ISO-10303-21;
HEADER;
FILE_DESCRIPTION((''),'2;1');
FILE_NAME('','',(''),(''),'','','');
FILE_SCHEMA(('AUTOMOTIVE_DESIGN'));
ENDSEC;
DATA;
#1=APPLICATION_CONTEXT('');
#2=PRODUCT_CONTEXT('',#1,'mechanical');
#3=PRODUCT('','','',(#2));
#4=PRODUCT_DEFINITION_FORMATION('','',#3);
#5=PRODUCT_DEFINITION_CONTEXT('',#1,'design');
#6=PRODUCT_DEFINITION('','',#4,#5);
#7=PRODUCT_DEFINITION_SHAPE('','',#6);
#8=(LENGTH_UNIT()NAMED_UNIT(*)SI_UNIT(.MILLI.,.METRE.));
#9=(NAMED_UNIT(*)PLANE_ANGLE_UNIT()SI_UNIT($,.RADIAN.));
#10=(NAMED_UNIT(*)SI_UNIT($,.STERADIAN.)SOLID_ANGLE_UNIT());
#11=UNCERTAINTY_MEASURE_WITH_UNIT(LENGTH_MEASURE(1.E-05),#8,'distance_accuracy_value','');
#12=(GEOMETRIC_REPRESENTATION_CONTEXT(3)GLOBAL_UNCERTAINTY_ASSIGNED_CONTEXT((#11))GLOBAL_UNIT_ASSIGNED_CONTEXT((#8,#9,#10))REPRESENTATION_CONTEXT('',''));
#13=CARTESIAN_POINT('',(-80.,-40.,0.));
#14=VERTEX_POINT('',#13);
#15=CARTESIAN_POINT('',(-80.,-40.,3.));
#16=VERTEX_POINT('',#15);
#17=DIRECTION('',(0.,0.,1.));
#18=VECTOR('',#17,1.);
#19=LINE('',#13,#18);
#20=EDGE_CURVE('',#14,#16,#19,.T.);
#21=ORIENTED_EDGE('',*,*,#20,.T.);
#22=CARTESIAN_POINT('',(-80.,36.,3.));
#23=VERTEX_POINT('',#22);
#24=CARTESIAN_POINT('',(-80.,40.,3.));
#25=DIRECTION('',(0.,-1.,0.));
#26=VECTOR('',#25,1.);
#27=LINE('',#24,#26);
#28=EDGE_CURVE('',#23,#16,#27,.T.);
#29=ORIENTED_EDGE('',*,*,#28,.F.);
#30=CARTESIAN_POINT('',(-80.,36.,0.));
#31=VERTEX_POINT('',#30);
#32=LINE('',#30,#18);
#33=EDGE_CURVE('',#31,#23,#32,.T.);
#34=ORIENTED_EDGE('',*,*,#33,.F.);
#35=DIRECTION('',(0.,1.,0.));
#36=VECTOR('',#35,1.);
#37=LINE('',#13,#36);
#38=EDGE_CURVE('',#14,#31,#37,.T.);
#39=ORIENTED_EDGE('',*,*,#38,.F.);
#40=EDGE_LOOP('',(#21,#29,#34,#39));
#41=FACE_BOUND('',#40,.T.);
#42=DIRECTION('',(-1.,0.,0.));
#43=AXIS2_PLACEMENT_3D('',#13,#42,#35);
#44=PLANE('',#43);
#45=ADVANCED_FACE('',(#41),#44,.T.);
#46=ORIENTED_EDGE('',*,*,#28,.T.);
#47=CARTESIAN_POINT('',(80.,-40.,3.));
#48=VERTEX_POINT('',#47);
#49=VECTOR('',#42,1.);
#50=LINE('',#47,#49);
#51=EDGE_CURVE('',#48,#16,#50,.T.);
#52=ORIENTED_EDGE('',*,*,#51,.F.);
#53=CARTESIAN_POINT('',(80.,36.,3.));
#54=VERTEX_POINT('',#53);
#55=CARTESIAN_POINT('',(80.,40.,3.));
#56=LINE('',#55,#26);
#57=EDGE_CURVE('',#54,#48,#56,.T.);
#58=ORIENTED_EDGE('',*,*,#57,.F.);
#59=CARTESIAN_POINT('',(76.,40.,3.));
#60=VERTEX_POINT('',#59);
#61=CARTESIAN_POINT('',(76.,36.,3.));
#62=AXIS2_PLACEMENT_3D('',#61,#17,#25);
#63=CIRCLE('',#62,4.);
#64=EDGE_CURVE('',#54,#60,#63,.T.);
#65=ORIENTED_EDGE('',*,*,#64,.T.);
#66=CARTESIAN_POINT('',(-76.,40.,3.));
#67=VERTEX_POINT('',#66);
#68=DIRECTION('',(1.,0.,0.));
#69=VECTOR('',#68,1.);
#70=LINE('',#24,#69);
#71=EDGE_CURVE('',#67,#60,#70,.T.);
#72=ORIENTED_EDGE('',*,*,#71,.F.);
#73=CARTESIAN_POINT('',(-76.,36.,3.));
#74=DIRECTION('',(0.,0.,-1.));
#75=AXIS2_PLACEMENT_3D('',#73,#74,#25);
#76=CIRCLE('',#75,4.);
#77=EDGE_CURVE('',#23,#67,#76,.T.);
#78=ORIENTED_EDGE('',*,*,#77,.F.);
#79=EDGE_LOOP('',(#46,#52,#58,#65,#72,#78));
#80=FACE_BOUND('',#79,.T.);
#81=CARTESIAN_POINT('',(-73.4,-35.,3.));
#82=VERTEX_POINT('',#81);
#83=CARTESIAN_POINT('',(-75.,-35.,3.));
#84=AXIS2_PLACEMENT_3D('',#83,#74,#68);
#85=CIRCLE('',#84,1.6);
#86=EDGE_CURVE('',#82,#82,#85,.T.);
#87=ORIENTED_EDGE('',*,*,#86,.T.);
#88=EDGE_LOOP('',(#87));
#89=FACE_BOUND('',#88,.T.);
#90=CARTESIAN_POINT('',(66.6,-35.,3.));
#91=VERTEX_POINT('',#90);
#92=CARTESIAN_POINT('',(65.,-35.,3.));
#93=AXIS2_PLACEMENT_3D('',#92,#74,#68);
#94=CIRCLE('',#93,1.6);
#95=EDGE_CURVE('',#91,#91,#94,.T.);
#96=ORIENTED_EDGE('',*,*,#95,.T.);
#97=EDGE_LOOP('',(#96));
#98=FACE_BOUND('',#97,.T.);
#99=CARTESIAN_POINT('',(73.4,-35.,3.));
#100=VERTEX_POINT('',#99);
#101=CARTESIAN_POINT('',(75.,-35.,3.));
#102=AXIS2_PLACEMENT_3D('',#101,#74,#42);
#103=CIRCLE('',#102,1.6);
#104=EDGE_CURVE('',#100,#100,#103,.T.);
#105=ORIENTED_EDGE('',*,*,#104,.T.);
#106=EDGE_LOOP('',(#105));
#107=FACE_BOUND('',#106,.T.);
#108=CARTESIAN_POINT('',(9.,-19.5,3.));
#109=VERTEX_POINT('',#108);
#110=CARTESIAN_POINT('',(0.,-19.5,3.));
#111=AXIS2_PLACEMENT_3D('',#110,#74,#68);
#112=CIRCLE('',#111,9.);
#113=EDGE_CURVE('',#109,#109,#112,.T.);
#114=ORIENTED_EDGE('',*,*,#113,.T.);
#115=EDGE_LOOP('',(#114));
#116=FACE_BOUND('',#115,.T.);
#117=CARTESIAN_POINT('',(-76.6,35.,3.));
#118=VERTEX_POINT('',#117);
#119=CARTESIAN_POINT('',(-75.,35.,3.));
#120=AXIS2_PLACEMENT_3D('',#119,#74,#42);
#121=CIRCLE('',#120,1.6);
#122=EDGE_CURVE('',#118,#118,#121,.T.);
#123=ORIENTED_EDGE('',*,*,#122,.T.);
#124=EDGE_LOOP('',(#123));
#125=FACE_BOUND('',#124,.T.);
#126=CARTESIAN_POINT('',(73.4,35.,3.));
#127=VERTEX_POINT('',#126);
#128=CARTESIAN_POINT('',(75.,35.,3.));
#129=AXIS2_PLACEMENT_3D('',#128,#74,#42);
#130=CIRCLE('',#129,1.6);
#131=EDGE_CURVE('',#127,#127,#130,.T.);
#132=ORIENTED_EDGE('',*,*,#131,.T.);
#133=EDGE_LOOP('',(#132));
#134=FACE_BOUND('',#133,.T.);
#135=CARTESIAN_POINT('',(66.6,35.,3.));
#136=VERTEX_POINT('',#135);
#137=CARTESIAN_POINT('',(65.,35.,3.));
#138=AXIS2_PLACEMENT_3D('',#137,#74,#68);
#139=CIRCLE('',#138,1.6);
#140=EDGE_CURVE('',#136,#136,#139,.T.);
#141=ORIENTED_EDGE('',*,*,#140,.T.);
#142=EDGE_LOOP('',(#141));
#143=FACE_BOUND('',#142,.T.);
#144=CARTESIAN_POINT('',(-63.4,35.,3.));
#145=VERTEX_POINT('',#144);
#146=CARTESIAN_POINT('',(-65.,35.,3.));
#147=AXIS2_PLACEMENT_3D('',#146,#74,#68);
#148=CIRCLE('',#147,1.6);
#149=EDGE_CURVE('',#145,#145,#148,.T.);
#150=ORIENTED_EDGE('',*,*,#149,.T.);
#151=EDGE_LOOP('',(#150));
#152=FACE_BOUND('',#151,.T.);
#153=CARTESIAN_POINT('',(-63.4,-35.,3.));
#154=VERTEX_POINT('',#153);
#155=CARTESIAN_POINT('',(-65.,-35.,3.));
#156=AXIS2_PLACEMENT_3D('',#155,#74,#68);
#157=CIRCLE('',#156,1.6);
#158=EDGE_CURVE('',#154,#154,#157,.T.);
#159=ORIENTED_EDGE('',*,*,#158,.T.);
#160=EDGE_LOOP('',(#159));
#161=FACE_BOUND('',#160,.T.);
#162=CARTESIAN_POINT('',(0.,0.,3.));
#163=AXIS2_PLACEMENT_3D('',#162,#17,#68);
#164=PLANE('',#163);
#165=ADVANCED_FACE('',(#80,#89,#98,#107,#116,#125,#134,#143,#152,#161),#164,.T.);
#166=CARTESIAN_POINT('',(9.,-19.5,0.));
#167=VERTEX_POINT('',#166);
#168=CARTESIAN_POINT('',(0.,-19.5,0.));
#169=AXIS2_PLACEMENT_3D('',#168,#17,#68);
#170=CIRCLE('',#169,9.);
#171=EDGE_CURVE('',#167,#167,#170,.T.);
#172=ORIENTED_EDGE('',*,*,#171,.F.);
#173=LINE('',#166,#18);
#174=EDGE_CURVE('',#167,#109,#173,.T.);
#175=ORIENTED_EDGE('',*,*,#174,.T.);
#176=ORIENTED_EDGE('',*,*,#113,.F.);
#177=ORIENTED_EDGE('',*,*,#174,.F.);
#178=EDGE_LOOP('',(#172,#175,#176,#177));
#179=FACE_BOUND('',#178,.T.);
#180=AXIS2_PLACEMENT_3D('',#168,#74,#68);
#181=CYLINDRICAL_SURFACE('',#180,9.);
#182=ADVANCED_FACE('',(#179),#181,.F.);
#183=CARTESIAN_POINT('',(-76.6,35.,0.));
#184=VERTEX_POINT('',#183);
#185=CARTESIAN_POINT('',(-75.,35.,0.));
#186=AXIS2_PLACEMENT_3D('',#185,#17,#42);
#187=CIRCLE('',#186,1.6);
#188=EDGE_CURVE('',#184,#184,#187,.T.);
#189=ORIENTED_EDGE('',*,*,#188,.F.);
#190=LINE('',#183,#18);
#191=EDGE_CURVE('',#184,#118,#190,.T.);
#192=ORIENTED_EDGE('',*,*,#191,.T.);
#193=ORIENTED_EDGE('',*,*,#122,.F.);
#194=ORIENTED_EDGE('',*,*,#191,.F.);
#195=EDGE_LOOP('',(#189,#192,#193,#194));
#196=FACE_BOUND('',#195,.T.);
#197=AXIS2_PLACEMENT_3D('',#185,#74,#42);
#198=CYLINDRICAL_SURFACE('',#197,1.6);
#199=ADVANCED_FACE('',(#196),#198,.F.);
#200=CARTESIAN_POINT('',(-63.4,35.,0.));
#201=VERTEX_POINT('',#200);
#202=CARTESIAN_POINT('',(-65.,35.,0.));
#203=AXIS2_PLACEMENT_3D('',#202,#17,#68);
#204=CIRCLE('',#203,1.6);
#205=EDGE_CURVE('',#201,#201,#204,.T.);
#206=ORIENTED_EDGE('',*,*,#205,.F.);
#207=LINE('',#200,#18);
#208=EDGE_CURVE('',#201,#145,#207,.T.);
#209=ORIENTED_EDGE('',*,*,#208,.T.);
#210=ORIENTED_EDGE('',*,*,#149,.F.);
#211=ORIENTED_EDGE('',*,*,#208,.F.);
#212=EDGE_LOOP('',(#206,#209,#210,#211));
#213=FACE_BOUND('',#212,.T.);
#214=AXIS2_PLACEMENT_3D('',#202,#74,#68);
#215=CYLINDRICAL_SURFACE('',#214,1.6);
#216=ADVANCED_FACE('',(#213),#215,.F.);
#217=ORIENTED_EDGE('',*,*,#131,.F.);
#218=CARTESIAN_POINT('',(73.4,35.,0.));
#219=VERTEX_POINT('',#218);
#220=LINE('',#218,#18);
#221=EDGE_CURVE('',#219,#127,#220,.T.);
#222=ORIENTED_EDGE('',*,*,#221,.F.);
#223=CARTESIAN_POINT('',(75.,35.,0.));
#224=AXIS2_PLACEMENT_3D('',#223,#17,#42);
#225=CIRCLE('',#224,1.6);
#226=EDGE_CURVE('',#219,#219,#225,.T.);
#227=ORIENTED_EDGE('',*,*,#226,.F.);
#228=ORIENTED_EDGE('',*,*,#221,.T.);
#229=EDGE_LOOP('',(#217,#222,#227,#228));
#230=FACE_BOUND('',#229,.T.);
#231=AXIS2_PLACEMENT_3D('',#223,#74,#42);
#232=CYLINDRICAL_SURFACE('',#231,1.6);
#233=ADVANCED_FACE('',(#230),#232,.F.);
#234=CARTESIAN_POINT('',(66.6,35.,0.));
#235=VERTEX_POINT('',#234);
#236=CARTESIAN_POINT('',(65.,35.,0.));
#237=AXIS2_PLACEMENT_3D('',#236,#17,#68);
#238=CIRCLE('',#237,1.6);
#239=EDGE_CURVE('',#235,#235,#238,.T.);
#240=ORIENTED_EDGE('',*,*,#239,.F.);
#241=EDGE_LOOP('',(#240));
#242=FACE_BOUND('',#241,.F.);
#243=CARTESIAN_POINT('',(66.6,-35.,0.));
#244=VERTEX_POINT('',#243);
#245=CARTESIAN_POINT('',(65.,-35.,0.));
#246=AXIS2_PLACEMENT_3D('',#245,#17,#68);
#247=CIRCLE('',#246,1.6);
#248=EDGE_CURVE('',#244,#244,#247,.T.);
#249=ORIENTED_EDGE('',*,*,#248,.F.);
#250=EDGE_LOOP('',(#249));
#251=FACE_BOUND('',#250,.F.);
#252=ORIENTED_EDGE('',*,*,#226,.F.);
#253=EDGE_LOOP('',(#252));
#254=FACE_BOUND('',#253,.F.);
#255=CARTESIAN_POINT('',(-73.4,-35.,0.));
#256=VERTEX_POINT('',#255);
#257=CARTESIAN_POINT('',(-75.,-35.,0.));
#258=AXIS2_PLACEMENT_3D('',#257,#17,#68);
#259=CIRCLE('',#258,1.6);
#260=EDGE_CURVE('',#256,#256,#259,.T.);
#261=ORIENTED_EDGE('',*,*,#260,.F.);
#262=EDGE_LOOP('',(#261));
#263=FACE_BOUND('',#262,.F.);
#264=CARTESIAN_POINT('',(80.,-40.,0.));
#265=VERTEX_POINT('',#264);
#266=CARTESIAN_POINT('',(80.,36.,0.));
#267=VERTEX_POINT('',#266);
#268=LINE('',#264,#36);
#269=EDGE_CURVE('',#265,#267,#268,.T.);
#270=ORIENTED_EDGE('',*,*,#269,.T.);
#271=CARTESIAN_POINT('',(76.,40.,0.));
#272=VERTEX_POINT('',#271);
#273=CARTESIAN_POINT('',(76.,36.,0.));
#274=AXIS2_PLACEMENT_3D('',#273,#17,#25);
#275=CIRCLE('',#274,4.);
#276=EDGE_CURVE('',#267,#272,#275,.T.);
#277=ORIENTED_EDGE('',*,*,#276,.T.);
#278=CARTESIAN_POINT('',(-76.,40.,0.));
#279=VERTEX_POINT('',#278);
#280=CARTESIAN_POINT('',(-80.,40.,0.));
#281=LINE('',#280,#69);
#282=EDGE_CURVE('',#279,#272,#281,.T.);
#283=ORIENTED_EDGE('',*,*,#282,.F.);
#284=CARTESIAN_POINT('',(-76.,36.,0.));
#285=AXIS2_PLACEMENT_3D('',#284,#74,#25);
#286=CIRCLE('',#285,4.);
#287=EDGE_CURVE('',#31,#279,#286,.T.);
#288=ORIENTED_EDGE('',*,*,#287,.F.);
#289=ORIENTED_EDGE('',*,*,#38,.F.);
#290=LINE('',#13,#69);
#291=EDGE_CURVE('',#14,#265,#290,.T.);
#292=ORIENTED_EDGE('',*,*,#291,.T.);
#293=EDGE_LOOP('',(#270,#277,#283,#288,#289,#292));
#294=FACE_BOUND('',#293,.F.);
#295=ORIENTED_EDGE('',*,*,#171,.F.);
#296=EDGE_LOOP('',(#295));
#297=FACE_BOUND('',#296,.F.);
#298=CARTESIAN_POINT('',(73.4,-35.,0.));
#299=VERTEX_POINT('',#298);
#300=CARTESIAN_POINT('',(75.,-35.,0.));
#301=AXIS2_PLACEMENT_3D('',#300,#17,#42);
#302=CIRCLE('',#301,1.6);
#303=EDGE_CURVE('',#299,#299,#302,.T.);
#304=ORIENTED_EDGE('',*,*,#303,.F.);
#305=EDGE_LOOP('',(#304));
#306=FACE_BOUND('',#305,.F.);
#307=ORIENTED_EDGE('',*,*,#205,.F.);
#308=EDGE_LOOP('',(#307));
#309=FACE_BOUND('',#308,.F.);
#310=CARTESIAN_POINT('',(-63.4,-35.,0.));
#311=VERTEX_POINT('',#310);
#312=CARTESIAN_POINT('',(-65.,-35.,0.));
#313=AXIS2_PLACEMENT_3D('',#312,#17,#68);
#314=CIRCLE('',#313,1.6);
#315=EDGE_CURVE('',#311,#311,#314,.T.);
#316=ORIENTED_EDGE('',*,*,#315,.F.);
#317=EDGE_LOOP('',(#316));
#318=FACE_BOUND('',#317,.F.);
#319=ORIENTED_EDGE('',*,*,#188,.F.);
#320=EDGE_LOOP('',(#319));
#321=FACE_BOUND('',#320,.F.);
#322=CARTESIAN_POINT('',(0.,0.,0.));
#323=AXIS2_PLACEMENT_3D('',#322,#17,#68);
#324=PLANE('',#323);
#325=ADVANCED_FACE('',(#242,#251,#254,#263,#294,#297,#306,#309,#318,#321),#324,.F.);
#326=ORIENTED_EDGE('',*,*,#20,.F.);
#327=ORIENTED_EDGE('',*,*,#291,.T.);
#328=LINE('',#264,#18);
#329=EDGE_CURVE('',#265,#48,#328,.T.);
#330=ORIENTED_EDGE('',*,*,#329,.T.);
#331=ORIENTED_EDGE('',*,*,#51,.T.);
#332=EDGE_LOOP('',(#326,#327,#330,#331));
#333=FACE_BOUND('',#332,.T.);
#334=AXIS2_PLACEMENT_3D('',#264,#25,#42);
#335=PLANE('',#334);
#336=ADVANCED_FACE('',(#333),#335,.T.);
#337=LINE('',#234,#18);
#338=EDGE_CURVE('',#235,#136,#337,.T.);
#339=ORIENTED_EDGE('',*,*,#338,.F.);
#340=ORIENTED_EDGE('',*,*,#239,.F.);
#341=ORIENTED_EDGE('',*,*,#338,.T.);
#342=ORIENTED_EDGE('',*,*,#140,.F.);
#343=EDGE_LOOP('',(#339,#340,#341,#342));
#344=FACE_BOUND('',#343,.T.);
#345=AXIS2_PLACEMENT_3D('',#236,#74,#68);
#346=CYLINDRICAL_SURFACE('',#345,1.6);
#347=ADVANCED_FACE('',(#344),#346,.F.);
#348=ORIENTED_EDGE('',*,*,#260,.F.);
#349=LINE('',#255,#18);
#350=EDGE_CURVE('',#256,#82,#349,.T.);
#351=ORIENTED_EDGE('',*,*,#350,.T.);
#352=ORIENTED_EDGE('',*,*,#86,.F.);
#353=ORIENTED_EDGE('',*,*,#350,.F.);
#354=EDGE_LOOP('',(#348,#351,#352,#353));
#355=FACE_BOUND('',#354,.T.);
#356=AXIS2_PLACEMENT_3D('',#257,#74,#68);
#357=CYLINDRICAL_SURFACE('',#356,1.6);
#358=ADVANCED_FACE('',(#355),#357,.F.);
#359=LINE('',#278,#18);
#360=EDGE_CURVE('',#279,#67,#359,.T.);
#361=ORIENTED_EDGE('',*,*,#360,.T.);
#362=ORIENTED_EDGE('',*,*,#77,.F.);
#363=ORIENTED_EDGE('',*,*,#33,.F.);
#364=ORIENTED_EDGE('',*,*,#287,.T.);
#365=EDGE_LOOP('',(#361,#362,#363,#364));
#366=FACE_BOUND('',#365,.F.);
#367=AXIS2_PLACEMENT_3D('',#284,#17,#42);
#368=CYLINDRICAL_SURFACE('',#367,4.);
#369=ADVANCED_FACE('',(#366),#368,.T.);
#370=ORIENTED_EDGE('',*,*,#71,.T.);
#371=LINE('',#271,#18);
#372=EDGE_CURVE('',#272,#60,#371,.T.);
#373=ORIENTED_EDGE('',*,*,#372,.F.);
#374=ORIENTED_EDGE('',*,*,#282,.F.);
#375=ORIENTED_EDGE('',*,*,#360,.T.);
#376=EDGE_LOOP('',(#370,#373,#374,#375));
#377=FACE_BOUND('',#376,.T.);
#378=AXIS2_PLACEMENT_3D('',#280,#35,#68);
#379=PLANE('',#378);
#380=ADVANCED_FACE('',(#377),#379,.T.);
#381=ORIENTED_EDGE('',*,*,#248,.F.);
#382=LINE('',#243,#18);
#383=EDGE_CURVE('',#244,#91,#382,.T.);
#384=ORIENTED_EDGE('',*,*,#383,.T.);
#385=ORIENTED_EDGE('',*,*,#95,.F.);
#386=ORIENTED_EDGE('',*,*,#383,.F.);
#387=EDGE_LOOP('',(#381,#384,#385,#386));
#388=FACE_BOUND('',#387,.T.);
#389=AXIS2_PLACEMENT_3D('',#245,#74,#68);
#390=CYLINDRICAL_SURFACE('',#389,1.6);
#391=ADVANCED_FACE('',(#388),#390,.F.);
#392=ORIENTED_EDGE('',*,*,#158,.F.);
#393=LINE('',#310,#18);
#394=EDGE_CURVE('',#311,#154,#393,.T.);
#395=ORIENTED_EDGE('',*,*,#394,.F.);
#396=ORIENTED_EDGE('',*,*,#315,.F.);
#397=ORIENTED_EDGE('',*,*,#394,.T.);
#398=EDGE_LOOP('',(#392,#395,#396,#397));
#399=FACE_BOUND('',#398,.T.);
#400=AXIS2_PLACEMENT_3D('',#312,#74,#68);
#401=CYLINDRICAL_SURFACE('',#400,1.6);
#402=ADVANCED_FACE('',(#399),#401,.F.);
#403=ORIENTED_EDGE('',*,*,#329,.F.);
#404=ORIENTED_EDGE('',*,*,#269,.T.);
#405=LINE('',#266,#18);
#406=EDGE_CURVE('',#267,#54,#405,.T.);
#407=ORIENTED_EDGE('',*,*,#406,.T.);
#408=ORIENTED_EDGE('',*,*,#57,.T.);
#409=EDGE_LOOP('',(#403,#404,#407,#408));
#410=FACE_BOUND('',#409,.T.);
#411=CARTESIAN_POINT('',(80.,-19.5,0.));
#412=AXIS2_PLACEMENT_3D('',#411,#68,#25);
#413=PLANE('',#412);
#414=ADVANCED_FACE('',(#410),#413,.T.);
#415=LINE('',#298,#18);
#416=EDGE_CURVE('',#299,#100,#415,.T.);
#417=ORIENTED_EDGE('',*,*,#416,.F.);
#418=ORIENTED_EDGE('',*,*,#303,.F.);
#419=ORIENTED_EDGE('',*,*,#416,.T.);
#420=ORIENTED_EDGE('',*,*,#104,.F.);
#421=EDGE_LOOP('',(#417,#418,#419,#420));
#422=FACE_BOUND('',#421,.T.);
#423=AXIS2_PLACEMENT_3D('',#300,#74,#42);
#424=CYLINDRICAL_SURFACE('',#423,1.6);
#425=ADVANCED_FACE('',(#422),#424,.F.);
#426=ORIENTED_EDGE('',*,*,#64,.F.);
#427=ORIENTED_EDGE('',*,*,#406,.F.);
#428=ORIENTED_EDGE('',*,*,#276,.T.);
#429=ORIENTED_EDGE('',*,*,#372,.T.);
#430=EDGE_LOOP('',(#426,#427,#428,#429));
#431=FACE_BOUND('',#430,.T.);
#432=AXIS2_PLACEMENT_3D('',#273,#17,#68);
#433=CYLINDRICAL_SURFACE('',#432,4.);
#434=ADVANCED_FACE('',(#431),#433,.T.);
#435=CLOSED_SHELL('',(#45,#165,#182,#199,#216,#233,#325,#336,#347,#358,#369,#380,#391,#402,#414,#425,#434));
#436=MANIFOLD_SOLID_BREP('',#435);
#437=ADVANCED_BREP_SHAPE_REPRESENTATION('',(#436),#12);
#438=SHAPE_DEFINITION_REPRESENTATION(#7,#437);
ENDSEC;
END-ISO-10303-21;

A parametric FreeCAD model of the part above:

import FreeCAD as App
import Part
import Sketcher
from FreeCAD import Vector
Q = App.Units.Quantity


def edges_at(feature, points):
    """Names of the edges that pass closest to the given points."""
    edges = feature.Shape.Edges
    near = lambda p: min(range(len(edges)), key=lambda i: edges[i].distToShape(Part.Vertex(*p))[0])
    return sorted({f"Edge{near(p) + 1}" for p in points})

doc = App.newDocument("Part")
body = doc.addObject("PartDesign::Body", "Body")

# Sketch on XY plane
sketch1 = body.newObject("Sketcher::SketchObject", "Sketch")
sketch1.AttachmentSupport = (doc.getObject("XY_Plane"), [""])
sketch1.MapMode = "FlatFace"
sketch1.addGeometry([
    Part.LineSegment(Vector(80, -40, 0), Vector(80, 40, 0)),  # 0
    Part.LineSegment(Vector(80, 40, 0), Vector(-80, 40, 0)),  # 1
    Part.LineSegment(Vector(-80, 40, 0), Vector(-80, -40, 0)),  # 2
    Part.LineSegment(Vector(-80, -40, 0), Vector(80, -40, 0)),  # 3
    Part.Circle(Vector(65, -35, 0), Vector(0, 0, 1), 1.6),  # 4
    Part.Circle(Vector(75, -35, 0), Vector(0, 0, 1), 1.6),  # 5
    Part.Circle(Vector(-75, -35, 0), Vector(0, 0, 1), 1.6),  # 6
    Part.Circle(Vector(-65, -35, 0), Vector(0, 0, 1), 1.6),  # 7
    Part.Circle(Vector(0, -19.5, 0), Vector(0, 0, 1), 9),  # 8
    Part.Circle(Vector(75, 35, 0), Vector(0, 0, 1), 1.6),  # 9
    Part.Circle(Vector(-75, 35, 0), Vector(0, 0, 1), 1.6),  # 10
    Part.Circle(Vector(-65, 35, 0), Vector(0, 0, 1), 1.6),  # 11
    Part.Circle(Vector(65, 35, 0), Vector(0, 0, 1), 1.6),  # 12
], False)
sketch1.addConstraint([
    Sketcher.Constraint("Coincident", 0, 2, 1, 1),
    Sketcher.Constraint("Coincident", 1, 2, 2, 1),
    Sketcher.Constraint("Coincident", 2, 2, 3, 1),
    Sketcher.Constraint("Coincident", 3, 2, 0, 1),
    Sketcher.Constraint("Vertical", 0),
    Sketcher.Constraint("Horizontal", 1),
    Sketcher.Constraint("Vertical", 2),
    Sketcher.Constraint("Horizontal", 3),
    Sketcher.Constraint("Equal", 4, 5),
    Sketcher.Constraint("Equal", 5, 6),
    Sketcher.Constraint("Equal", 6, 7),
    Sketcher.Constraint("Equal", 7, 9),
    Sketcher.Constraint("Equal", 9, 10),
    Sketcher.Constraint("Equal", 10, 11),
    Sketcher.Constraint("Equal", 11, 12),
    Sketcher.Constraint("Symmetric", 6, 3, 9, 3, -1, 1),
    Sketcher.Constraint("Symmetric", 5, 3, 10, 3, -1, 1),
    Sketcher.Constraint("Symmetric", 4, 3, 11, 3, -1, 1),
    Sketcher.Constraint("Symmetric", 7, 3, 12, 3, -1, 1),
    Sketcher.Constraint("Symmetric", 0, 2, 2, 2, -1, 1),
    Sketcher.Constraint("Symmetric", 5, 3, 6, 3, -2),
    Sketcher.Constraint("Symmetric", 4, 3, 7, 3, -2),
    Sketcher.Constraint("PointOnObject", 8, 3, -2),
    Sketcher.Constraint("Horizontal", 4, 3, 5, 3),
    Sketcher.Constraint("Diameter", 8, Q("18 mm")),
    Sketcher.Constraint("Diameter", 4, Q("3.2 mm")),
    Sketcher.Constraint("DistanceX", 1, 2, 1, 1, Q("160 mm")),
    Sketcher.Constraint("DistanceY", 0, 1, 0, 2, Q("80 mm")),
    Sketcher.Constraint("DistanceX", -1, 1, 4, 3, Q("65 mm")),
    Sketcher.Constraint("DistanceY", 4, 3, -1, 1, Q("35 mm")),
    Sketcher.Constraint("DistanceX", 9, 3, 0, 2, Q("5 mm")),
    Sketcher.Constraint("DistanceY", 8, 3, -1, 1, Q("19.5 mm")),
])
pad1 = body.newObject("PartDesign::Pad", "Pad")
pad1.Profile = sketch1
pad1.Length = 3
doc.recompute()

fillet = body.newObject("PartDesign::Fillet", "Fillet")
fillet.Base = (pad1, edges_at(pad1, [(80, 40, 1.5), (-80, 40, 1.5)]))
fillet.Radius = 4

doc.recompute()
